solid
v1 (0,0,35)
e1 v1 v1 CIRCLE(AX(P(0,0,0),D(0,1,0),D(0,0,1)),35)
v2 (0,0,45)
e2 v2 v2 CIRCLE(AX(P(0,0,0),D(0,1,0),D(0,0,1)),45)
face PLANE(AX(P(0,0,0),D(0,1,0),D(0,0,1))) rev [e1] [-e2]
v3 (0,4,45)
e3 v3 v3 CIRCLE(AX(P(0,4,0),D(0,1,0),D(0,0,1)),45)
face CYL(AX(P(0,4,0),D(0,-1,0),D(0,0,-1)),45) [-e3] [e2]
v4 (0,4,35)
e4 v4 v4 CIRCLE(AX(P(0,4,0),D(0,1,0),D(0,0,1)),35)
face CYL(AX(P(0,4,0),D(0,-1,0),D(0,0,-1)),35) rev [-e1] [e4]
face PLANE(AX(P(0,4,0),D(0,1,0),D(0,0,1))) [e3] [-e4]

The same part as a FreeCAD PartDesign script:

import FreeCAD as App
import Part
import Sketcher

doc = App.newDocument("Part")
body = doc.addObject("PartDesign::Body", "Body")

# Sketch on XZ plane
sketch1 = doc.addObject("Sketcher::SketchObject", "Sketch")
body.addObject(sketch1)
sketch1.AttachmentSupport = (doc.XZ_Plane, [""])
sketch1.MapMode = "FlatFace"
sketch1.addGeometry(Part.Circle(App.Vector(0, 0, 0), App.Vector(0, 0, 1), 45), False)
sketch1.addGeometry(Part.Circle(App.Vector(0, 0, 0), App.Vector(0, 0, 1), 35), False)
sketch1.addConstraint(Sketcher.Constraint("Coincident", 0, 3, -1, 1))
sketch1.addConstraint(Sketcher.Constraint("Coincident", 1, 3, -1, 1))
sketch1.addConstraint(Sketcher.Constraint("Diameter", 0, 90.0))
sketch1.addConstraint(Sketcher.Constraint("Diameter", 1, 70.0))
pad1 = doc.addObject("PartDesign::Pad", "Pad")
body.addObject(pad1)
pad1.Profile = sketch1
pad1.Length = 4
pad1.Reversed = True

doc.recompute()
